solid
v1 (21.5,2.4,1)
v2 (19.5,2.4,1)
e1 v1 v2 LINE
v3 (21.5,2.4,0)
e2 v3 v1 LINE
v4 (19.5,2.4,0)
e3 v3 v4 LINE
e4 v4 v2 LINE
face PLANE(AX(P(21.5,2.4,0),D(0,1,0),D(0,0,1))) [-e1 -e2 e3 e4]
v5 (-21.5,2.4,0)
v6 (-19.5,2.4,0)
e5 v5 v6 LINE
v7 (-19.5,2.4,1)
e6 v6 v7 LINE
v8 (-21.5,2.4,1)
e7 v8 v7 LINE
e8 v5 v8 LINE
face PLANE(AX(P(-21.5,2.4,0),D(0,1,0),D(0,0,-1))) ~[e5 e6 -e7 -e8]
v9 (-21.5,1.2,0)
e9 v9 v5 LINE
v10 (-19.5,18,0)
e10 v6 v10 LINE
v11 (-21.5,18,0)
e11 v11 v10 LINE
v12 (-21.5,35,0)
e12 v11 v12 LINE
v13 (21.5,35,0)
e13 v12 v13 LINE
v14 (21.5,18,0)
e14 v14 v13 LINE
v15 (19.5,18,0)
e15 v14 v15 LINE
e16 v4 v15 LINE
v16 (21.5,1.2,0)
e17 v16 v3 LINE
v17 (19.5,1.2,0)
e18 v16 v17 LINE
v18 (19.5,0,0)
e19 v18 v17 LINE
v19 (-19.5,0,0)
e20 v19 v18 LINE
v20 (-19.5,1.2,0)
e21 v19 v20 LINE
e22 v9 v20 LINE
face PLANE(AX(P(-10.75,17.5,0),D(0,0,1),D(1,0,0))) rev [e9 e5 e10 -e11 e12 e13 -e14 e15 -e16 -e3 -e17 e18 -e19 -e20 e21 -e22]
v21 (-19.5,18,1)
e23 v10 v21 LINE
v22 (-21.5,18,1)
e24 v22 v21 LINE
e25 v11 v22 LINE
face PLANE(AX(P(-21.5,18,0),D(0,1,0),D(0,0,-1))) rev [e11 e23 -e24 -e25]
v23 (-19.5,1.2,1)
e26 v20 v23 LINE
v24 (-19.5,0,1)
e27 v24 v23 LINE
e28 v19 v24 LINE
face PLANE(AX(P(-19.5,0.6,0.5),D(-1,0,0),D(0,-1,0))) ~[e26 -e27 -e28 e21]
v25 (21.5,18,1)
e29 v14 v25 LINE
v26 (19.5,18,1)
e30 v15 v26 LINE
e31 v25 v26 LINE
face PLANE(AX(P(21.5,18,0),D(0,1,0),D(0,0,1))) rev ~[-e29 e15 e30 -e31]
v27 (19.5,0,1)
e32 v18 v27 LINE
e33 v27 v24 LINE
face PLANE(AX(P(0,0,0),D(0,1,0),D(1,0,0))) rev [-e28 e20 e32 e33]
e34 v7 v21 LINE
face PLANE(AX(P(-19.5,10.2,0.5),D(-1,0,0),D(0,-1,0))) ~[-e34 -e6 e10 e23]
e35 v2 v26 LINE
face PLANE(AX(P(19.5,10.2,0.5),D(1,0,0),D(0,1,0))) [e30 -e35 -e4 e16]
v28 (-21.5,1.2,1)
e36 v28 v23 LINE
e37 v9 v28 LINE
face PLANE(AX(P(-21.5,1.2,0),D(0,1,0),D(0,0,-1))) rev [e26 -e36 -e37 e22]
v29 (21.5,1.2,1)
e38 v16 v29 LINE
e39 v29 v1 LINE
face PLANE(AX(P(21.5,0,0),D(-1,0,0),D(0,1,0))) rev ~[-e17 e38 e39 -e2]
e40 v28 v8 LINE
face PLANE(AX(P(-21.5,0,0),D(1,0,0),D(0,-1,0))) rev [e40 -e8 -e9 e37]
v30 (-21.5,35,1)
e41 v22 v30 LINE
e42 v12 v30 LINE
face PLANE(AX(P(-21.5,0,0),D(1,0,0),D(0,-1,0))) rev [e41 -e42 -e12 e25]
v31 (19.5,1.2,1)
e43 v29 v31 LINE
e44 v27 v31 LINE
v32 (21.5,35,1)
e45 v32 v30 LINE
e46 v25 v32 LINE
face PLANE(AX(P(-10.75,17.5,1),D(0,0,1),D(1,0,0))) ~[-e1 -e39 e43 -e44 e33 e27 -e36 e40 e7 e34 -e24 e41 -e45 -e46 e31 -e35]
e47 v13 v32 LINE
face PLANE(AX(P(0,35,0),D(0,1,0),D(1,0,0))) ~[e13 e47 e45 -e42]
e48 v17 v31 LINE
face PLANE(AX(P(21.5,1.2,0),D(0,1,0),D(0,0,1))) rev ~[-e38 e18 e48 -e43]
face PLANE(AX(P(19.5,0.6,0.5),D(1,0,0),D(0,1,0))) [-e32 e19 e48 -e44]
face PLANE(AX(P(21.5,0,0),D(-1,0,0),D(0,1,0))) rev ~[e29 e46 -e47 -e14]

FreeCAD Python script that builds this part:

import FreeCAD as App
import Part
import Sketcher

V = App.Vector


def add_polygon(sketch, points):
    """Adds a closed chain of lines whose ends are joined by coincident constraints."""
    first, n = sketch.GeometryCount, len(points)
    for a, b in zip(points, points[1:] + points[:1]):
        sketch.addGeometry(Part.LineSegment(App.Vector(*a, 0), App.Vector(*b, 0)), False)
    for i in range(n):
        sketch.addConstraint(Sketcher.Constraint("Coincident", first + i, 2, first + (i + 1) % n, 1))

doc = App.newDocument("Part")
params = doc.addObject("Spreadsheet::Sheet", "Params")
for row, (alias, value) in enumerate([
    ("sketch1_height", "35 mm"),
    ("sketch1_width", "21.5 mm"),
    ("pad1_length", "1 mm"),
    ("sketch2_height", "1 mm"),
    ("sketch2_width", "1.2 mm"),
    ("sketch2_width2", "15.6 mm"),
    ("pocket1_length", "2 mm"),
], start=1):
    params.set(f"A{row}", alias)
    params.set(f"B{row}", "=" + value)
    params.setAlias(f"B{row}", alias)

body = doc.addObject("PartDesign::Body", "Body")

# Sketch on XY plane
sketch1 = doc.addObject("Sketcher::SketchObject", "Sketch")
body.addObject(sketch1)
sketch1.AttachmentSupport = (doc.XY_Plane, [""])
sketch1.MapMode = "FlatFace"
add_polygon(sketch1, [(0, 35), (0, 0), (21.5, 0), (21.5, 35)])  # lines 0-3
sketch1.addConstraint([
    Sketcher.Constraint("Vertical", 0),
    Sketcher.Constraint("Horizontal", 1),
    Sketcher.Constraint("Vertical", 2),
    Sketcher.Constraint("Horizontal", 3),
    Sketcher.Constraint("Coincident", 0, 2, -1, 1),
    Sketcher.Constraint("DistanceY", 0, 2, 0, 1, 35.0),
    Sketcher.Constraint("DistanceX", 1, 1, 1, 2, 21.5),
])
sketch1.setExpression("Constraints[9]", "Params.sketch1_height")
sketch1.setExpression("Constraints[10]", "Params.sketch1_width")
pad1 = doc.addObject("PartDesign::Pad", "Pad")
body.addObject(pad1)
pad1.Profile = sketch1
pad1.setExpression("Length", "Params.pad1_length")

# Sketch on YZ plane
sketch2 = doc.addObject("Sketcher::SketchObject", "Sketch001")
body.addObject(sketch2)
sketch2.AttachmentSupport = (doc.YZ_Plane, [""])
sketch2.MapMode = "FlatFace"
sketch2.AttachmentOffset = App.Placement(V(0, 0, 21.5), App.Rotation())
add_polygon(sketch2, [(0, 1), (0, 0), (1.2, 0), (1.2, 1)])  # lines 0-3
add_polygon(sketch2, [(2.4, 1), (2.4, 0), (18, 0), (18, 1)])  # lines 4-7
sketch2.addConstraint([
    Sketcher.Constraint("Vertical", 0),
    Sketcher.Constraint("Horizontal", 1),
    Sketcher.Constraint("Vertical", 2),
    Sketcher.Constraint("Horizontal", 3),
    Sketcher.Constraint("Vertical", 4),
    Sketcher.Constraint("Horizontal", 5),
    Sketcher.Constraint("Vertical", 6),
    Sketcher.Constraint("Horizontal", 7),
    Sketcher.Constraint("Coincident", 0, 2, -1, 1),
    Sketcher.Constraint("PointOnObject", 4, 2, -1),
    Sketcher.Constraint("Horizontal", 3, 2, 6, 2),
    Sketcher.Constraint("DistanceY", 0, 2, 0, 1, 1.0),
    Sketcher.Constraint("DistanceX", 1, 1, 1, 2, 1.2),
    Sketcher.Constraint("DistanceX", 5, 1, 5, 2, 15.6),
    Sketcher.Constraint("DistanceX", -1, 1, 5, 2, 18.0),
])
sketch2.setExpression("Constraints[19]", "Params.sketch2_height")
sketch2.setExpression("Constraints[20]", "Params.sketch2_width")
sketch2.setExpression("Constraints[21]", "Params.sketch2_width2")
pocket1 = doc.addObject("PartDesign::Pocket", "Pocket")
body.addObject(pocket1)
pocket1.Profile = sketch2
pocket1.setExpression("Length", "Params.pocket1_length")
body2 = doc.addObject("PartDesign::Body", "Body001")
doc.recompute()

body2.BaseFeature = body
doc.recompute()

mirroring = doc.addObject("Part::Mirroring", "Mirroring")
mirroring.Source = body
mirroring.Base = V(0, 17.5, 0.5)
mirroring.Normal = V(-1, 0, 0)
body3 = doc.addObject("PartDesign::Body", "Body002")
body3.BaseFeature = mirroring
boolean = doc.addObject("PartDesign::Boolean", "Boolean")
body2.addObject(boolean)
boolean.Type = "Fuse"
boolean.addObjects([body3])
doc.recompute()
mirroring.Visibility = False

doc.recompute()
